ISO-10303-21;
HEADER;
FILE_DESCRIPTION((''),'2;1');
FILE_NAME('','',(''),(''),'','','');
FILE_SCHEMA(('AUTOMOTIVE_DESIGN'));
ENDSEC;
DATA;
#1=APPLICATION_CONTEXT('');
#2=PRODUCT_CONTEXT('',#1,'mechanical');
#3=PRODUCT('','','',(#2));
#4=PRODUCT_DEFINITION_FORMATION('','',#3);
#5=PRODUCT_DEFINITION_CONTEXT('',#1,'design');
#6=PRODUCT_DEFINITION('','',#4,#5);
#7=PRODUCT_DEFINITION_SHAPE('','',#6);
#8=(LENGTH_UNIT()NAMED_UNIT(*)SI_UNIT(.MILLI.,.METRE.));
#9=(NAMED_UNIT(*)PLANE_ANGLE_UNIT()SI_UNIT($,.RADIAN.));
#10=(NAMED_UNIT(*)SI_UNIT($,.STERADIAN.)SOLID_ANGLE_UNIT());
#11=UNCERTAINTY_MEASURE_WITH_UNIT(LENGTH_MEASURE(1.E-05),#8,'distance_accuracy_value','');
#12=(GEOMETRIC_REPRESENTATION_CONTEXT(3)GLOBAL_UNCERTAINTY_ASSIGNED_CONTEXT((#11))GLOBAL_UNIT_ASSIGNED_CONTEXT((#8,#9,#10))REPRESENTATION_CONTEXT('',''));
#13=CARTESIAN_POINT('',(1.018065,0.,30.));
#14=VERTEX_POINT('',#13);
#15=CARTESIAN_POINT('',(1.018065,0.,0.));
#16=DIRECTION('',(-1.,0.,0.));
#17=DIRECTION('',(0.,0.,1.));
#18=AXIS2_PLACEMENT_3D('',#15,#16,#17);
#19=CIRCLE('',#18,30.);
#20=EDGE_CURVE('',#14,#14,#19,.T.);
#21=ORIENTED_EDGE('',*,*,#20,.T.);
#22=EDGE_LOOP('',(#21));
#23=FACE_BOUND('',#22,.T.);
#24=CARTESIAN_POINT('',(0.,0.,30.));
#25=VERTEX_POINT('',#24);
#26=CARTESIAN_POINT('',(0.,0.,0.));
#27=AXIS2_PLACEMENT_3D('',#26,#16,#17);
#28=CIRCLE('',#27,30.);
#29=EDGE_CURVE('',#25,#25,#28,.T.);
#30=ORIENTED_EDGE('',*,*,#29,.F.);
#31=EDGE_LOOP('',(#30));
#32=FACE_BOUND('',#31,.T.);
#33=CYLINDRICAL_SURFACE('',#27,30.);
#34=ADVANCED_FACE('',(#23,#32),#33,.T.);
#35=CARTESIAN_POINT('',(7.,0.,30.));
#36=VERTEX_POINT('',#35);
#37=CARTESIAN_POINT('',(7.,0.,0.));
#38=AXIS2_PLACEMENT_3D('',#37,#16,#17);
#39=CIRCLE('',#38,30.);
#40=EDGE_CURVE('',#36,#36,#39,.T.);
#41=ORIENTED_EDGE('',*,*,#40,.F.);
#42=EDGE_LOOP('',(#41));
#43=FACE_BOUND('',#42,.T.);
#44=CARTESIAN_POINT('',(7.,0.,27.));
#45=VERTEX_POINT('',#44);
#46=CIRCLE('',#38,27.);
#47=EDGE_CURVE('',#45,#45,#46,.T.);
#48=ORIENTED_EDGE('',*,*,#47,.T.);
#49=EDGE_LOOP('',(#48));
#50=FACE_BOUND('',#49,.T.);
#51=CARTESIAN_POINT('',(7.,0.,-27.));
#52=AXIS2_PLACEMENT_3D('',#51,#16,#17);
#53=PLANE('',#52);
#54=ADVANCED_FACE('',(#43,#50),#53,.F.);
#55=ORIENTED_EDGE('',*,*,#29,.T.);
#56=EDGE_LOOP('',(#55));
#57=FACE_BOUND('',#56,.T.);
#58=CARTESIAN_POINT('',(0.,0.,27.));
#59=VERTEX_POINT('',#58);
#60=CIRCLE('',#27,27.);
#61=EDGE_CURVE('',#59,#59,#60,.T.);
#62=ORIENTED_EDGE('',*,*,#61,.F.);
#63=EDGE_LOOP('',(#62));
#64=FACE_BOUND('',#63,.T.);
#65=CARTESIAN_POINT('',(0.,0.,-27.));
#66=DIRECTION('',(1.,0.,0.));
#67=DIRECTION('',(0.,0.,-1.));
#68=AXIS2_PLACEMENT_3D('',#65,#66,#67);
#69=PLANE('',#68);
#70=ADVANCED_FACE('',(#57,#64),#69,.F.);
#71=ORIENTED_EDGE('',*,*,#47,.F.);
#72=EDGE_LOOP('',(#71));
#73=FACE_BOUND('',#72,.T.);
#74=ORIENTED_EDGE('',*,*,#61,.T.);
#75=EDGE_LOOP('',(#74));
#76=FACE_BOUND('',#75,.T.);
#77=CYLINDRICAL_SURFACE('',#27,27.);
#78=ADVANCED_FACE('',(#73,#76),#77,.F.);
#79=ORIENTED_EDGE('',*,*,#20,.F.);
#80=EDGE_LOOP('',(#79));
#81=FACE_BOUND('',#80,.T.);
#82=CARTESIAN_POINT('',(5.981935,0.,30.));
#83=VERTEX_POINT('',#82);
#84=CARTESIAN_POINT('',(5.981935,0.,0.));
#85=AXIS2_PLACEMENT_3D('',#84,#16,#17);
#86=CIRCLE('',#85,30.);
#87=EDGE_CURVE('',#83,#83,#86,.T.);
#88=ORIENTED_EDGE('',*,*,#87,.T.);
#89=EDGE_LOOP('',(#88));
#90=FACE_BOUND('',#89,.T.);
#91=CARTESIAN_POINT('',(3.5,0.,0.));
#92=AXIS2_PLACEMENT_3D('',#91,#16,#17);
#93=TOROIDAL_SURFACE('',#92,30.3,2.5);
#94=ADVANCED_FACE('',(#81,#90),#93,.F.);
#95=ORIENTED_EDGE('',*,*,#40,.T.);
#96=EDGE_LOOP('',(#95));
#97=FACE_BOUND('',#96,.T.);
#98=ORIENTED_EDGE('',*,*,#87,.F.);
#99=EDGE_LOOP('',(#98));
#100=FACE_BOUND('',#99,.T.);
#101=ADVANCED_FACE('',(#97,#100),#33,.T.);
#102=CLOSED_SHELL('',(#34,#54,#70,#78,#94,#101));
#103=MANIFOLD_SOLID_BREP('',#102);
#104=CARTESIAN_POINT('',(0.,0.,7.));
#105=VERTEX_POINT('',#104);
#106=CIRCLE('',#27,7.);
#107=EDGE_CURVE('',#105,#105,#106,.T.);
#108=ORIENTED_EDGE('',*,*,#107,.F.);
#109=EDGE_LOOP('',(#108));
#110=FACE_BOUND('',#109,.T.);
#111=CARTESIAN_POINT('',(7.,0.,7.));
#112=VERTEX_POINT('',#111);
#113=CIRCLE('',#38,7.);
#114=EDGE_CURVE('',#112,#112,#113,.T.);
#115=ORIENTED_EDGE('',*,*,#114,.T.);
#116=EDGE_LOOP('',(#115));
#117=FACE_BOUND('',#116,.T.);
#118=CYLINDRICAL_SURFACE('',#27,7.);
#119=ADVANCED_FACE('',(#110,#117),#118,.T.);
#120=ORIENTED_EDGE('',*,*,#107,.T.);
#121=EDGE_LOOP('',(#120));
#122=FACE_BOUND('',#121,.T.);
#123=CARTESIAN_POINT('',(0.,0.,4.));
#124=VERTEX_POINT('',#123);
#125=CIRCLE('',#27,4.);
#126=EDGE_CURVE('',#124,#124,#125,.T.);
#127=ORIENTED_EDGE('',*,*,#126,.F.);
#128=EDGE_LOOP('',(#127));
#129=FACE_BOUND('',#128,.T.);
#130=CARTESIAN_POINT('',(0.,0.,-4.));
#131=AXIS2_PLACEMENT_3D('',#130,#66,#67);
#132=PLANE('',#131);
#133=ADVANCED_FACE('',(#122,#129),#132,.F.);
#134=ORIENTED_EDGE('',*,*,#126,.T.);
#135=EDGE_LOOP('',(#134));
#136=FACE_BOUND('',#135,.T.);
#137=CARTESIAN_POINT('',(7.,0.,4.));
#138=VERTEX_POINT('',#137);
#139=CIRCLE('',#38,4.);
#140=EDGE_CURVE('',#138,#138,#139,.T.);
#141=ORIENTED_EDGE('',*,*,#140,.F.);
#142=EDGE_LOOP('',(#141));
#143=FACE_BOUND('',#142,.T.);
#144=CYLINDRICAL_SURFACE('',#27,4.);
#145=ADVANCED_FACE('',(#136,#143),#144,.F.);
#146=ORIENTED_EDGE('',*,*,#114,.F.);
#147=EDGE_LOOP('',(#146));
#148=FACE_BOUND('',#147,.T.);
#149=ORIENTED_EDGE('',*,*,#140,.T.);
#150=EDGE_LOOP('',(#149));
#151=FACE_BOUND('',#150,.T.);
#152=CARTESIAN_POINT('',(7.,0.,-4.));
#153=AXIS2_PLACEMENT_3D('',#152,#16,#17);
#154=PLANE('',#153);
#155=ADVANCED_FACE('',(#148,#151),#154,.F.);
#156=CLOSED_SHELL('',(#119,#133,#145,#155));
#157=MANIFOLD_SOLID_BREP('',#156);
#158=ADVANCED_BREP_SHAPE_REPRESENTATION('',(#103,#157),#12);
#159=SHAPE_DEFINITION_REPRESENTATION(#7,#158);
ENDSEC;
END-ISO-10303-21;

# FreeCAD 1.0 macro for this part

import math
import FreeCAD as App
import Part
import Sketcher

V = App.Vector

doc = App.newDocument("Part")
body = doc.addObject("PartDesign::Body", "Body")
body.AllowCompound = True

sketch1 = doc.addObject("Sketcher::SketchObject", "Sketch")
body.addObject(sketch1)
sketch1.AttachmentSupport = (doc.XZ_Plane, [""])
sketch1.MapMode = "FlatFace"
sketch1.addGeometry([
    Part.LineSegment(V(0, -7, 0), V(0, -4, 0)),
    Part.LineSegment(V(0, -4, 0), V(7, -4, 0)),
    Part.LineSegment(V(7, -4, 0), V(7, -7, 0)),
    Part.LineSegment(V(7, -7, 0), V(0, -7, 0)),
    Part.LineSegment(V(1.018065, -30, 0), V(0, -30, 0)),
    Part.LineSegment(V(0, -30, 0), V(0, -27, 0)),
    Part.LineSegment(V(0, -27, 0), V(7, -27, 0)),
    Part.LineSegment(V(7, -27, 0), V(7, -30, 0)),
    Part.LineSegment(V(7, -30, 0), V(5.981935, -30, 0)),
    Part.ArcOfCircle(Part.Circle(V(3.5, -30.3, 0), V(0, 0, 1), 2.5), math.radians(6.892103), math.radians(173.107897)),
], False)
sketch1.addConstraint([
    Sketcher.Constraint("Coincident", 0, 2, 1, 1),
    Sketcher.Constraint("Coincident", 1, 2, 2, 1),
    Sketcher.Constraint("Coincident", 2, 2, 3, 1),
    Sketcher.Constraint("Coincident", 3, 2, 0, 1),
    Sketcher.Constraint("Coincident", 4, 2, 5, 1),
    Sketcher.Constraint("Coincident", 5, 2, 6, 1),
    Sketcher.Constraint("Coincident", 6, 2, 7, 1),
    Sketcher.Constraint("Coincident", 7, 2, 8, 1),
    Sketcher.Constraint("Coincident", 8, 2, 9, 1),
    Sketcher.Constraint("Coincident", 9, 2, 4, 1),
    Sketcher.Constraint("Vertical", 0),
    Sketcher.Constraint("Horizontal", 1),
    Sketcher.Constraint("Vertical", 2),
    Sketcher.Constraint("Horizontal", 3),
    Sketcher.Constraint("Horizontal", 4),
    Sketcher.Constraint("Vertical", 5),
    Sketcher.Constraint("Horizontal", 6),
    Sketcher.Constraint("Vertical", 7),
    Sketcher.Constraint("Horizontal", 8),
    Sketcher.Constraint("PointOnObject", 0, 2, -2),
    Sketcher.Constraint("PointOnObject", 4, 2, -2),
    Sketcher.Constraint("Horizontal", 4, 2, 7, 2),
    Sketcher.Constraint("Vertical", 2, 2, 6, 2),
    Sketcher.Constraint("Equal", 4, 8),
    Sketcher.Constraint("Equal", 2, 5),
    Sketcher.Constraint("Radius", 9, 2.5),
    Sketcher.Constraint("DistanceX", 1, 1, 1, 2, 7.0),
    Sketcher.Constraint("DistanceY", 0, 1, 0, 2, 3.0),
    Sketcher.Constraint("DistanceY", 0, 2, -1, 1, 4.0),
    Sketcher.Constraint("DistanceY", 4, 2, -1, 1, 30.0),
    Sketcher.Constraint("DistanceY", 9, 3, -1, 1, 30.3),
])
revolution = doc.addObject("PartDesign::Revolution", "Revolution")
body.addObject(revolution)
revolution.Profile = sketch1
revolution.ReferenceAxis = (sketch1, ["H_Axis"])
revolution.Angle = 360

doc.recompute()
